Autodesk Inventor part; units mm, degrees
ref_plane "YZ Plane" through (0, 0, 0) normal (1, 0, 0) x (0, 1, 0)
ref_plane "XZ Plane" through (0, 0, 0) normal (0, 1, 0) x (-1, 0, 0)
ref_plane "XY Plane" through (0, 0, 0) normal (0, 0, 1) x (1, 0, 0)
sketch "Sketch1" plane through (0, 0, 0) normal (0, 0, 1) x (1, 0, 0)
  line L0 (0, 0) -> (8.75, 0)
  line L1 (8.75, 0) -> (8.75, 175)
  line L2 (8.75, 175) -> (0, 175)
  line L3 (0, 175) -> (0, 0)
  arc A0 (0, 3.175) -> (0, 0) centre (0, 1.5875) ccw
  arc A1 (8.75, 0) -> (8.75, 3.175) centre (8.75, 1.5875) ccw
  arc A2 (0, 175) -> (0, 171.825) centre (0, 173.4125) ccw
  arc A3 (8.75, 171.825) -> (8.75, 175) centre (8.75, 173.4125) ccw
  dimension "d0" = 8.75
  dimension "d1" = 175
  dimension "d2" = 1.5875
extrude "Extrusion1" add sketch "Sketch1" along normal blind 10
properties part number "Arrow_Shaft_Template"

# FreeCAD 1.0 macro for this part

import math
import FreeCAD as App
import Part
import Sketcher
Q = App.Units.Quantity

doc = App.newDocument("Part")
params = doc.addObject("Spreadsheet::Sheet", "Params")
for row, (alias, value) in enumerate([
    ("sketch1_radius", "0.0625 in"),
    ("pad1_length", "0.3937008 in"),
], start=1):
    params.set(f"A{row}", alias)
    params.set(f"B{row}", "=" + value)
    params.setAlias(f"B{row}", alias)

body = doc.addObject("PartDesign::Body", "Body")

# Sketch on XY plane
sketch1 = body.newObject("Sketcher::SketchObject", "Sketch")
sketch1.AttachmentSupport = (doc.getObject("XY_Plane"), [""])
sketch1.MapMode = "FlatFace"
sketch1.addGeometry([
    Part.LineSegment(App.Vector(0, 171.8, 0), App.Vector(0, 3.2, 0)),  # 0
    Part.ArcOfCircle(Part.Circle(App.Vector(0, 1.6, 0), App.Vector(0, 0, 1), 1.6), math.radians(90), math.radians(270)),  # 1
    Part.LineSegment(App.Vector(0, 0, 0), App.Vector(8.8, 0, 0)),  # 2
    Part.ArcOfCircle(Part.Circle(App.Vector(8.8, 1.6, 0), App.Vector(0, 0, 1), 1.6), math.radians(-90), math.radians(90)),  # 3
    Part.LineSegment(App.Vector(8.8, 3.2, 0), App.Vector(8.8, 171.8, 0)),  # 4
    Part.ArcOfCircle(Part.Circle(App.Vector(8.8, 173.4, 0), App.Vector(0, 0, 1), 1.6), math.radians(-90), math.radians(90)),  # 5
    Part.LineSegment(App.Vector(8.8, 175, 0), App.Vector(0, 175, 0)),  # 6
    Part.ArcOfCircle(Part.Circle(App.Vector(0, 173.4, 0), App.Vector(0, 0, 1), 1.6), math.radians(90), math.radians(270)),  # 7
], False)
sketch1.addConstraint([
    Sketcher.Constraint("Coincident", 0, 2, 1, 1),
    Sketcher.Constraint("Tangent", 1, 2, 2, 1),
    Sketcher.Constraint("Tangent", 2, 2, 3, 1),
    Sketcher.Constraint("Coincident", 3, 2, 4, 1),
    Sketcher.Constraint("Coincident", 4, 2, 5, 1),
    Sketcher.Constraint("Tangent", 5, 2, 6, 1),
    Sketcher.Constraint("Tangent", 6, 2, 7, 1),
    Sketcher.Constraint("Coincident", 7, 2, 0, 1),
    Sketcher.Constraint("Vertical", 0),
    Sketcher.Constraint("Horizontal", 2),
    Sketcher.Constraint("Vertical", 4),
    Sketcher.Constraint("Horizontal", 6),
    Sketcher.Constraint("Coincident", 1, 2, -1, 1),
    Sketcher.Constraint("Equal", 1, 3),
    Sketcher.Constraint("Equal", 3, 5),
    Sketcher.Constraint("Equal", 5, 7),
    Sketcher.Constraint("PointOnObject", 7, 3, -2),
    Sketcher.Constraint("PointOnObject", 0, 2, -2),
    Sketcher.Constraint("Vertical", 3, 3, 5, 3),
    Sketcher.Constraint("Vertical", 2, 2, 3, 2),
    Sketcher.Constraint("Radius", 1, Q("0.0625 in")),
    Sketcher.Constraint("DistanceX", 2, 1, 2, 2, Q("0.3445 in")),
    Sketcher.Constraint("DistanceY", -1, 1, 5, 2, Q("175 mm")),
])
sketch1.setExpression("Constraints[20]", "Params.sketch1_radius")
pad1 = body.newObject("PartDesign::Pad", "Pad")
pad1.Profile = sketch1
pad1.setExpression("Length", "Params.pad1_length")

doc.recompute()
